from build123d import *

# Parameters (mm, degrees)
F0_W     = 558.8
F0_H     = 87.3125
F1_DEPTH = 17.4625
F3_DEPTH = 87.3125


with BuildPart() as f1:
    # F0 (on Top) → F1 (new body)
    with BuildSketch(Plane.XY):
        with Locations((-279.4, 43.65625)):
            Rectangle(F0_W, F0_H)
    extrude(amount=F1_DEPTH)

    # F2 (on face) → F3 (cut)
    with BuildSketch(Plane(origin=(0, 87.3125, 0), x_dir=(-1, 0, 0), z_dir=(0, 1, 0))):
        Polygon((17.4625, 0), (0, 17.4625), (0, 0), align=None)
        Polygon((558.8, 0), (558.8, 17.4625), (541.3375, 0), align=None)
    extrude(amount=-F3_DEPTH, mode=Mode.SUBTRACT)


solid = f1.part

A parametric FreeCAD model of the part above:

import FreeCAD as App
import Part
import Sketcher
from FreeCAD import Vector
Q = App.Units.Quantity


def add_polygon(sketch, points):
    """Adds a closed chain of lines whose ends are joined by coincident constraints."""
    first, n = sketch.GeometryCount, len(points)
    for a, b in zip(points, points[1:] + points[:1]):
        sketch.addGeometry(Part.LineSegment(App.Vector(*a, 0), App.Vector(*b, 0)), False)
    for i in range(n):
        sketch.addConstraint(Sketcher.Constraint("Coincident", first + i, 2, first + (i + 1) % n, 1))

doc = App.newDocument("Part")
body = doc.addObject("PartDesign::Body", "Body")

sketch1 = body.newObject("Sketcher::SketchObject", "Sketch")
sketch1.AttachmentSupport = (doc.getObject("XY_Plane"), [""])
sketch1.MapMode = "FlatFace"
add_polygon(sketch1, [(-559, 87), (-559, 0), (0, 0), (0, 87)])
sketch1.addConstraint(Sketcher.Constraint("Vertical", 0))
sketch1.addConstraint(Sketcher.Constraint("Horizontal", 1))
sketch1.addConstraint(Sketcher.Constraint("Vertical", 2))
sketch1.addConstraint(Sketcher.Constraint("Horizontal", 3))
sketch1.addConstraint(Sketcher.Constraint("Coincident", 1, 2, -1, 1))
sketch1.addConstraint(Sketcher.Constraint("DistanceX", 1, 1, 1, 2, Q("22 in")))
sketch1.addConstraint(Sketcher.Constraint("DistanceY", 0, 2, 0, 1, Q("3.4375 in")))
pad1 = body.newObject("PartDesign::Pad", "Pad")
pad1.Profile = sketch1
pad1.Length = Q("0.6875 in")

sketch2 = body.newObject("Sketcher::SketchObject", "Sketch001")
sketch2.AttachmentSupport = (doc.getObject("XZ_Plane"), [""])
sketch2.MapMode = "FlatFace"
sketch2.AttachmentOffset = App.Placement(Vector(0, 0, -3.4375 * 25.4), App.Rotation())
add_polygon(sketch2, [(-17, 0), (0, 17), (0, 0)])
add_polygon(sketch2, [(-559, 0), (-559, 17), (-541, 0)])
sketch2.addConstraint(Sketcher.Constraint("Vertical", 1))
sketch2.addConstraint(Sketcher.Constraint("Horizontal", 2))
sketch2.addConstraint(Sketcher.Constraint("Vertical", 3))
sketch2.addConstraint(Sketcher.Constraint("Horizontal", 5))
sketch2.addConstraint(Sketcher.Constraint("Coincident", 1, 2, -1, 1))
sketch2.addConstraint(Sketcher.Constraint("PointOnObject", 4, 2, -1))
sketch2.addConstraint(Sketcher.Constraint("Perpendicular", 0, 4))
sketch2.addConstraint(Sketcher.Constraint("Horizontal", 0, 2, 3, 2))
sketch2.addConstraint(Sketcher.Constraint("Equal", 2, 5))
sketch2.addConstraint(Sketcher.Constraint("DistanceX", 3, 2, -1, 1, Q("22 in")))
sketch2.addConstraint(Sketcher.Constraint("DistanceX", 2, 2, 2, 1, Q("0.6875 in")))
pocket1 = body.newObject("PartDesign::Pocket", "Pocket")
pocket1.Profile = sketch2
pocket1.Length = Q("3.4375 in")
pocket1.Reversed = True

doc.recompute()
